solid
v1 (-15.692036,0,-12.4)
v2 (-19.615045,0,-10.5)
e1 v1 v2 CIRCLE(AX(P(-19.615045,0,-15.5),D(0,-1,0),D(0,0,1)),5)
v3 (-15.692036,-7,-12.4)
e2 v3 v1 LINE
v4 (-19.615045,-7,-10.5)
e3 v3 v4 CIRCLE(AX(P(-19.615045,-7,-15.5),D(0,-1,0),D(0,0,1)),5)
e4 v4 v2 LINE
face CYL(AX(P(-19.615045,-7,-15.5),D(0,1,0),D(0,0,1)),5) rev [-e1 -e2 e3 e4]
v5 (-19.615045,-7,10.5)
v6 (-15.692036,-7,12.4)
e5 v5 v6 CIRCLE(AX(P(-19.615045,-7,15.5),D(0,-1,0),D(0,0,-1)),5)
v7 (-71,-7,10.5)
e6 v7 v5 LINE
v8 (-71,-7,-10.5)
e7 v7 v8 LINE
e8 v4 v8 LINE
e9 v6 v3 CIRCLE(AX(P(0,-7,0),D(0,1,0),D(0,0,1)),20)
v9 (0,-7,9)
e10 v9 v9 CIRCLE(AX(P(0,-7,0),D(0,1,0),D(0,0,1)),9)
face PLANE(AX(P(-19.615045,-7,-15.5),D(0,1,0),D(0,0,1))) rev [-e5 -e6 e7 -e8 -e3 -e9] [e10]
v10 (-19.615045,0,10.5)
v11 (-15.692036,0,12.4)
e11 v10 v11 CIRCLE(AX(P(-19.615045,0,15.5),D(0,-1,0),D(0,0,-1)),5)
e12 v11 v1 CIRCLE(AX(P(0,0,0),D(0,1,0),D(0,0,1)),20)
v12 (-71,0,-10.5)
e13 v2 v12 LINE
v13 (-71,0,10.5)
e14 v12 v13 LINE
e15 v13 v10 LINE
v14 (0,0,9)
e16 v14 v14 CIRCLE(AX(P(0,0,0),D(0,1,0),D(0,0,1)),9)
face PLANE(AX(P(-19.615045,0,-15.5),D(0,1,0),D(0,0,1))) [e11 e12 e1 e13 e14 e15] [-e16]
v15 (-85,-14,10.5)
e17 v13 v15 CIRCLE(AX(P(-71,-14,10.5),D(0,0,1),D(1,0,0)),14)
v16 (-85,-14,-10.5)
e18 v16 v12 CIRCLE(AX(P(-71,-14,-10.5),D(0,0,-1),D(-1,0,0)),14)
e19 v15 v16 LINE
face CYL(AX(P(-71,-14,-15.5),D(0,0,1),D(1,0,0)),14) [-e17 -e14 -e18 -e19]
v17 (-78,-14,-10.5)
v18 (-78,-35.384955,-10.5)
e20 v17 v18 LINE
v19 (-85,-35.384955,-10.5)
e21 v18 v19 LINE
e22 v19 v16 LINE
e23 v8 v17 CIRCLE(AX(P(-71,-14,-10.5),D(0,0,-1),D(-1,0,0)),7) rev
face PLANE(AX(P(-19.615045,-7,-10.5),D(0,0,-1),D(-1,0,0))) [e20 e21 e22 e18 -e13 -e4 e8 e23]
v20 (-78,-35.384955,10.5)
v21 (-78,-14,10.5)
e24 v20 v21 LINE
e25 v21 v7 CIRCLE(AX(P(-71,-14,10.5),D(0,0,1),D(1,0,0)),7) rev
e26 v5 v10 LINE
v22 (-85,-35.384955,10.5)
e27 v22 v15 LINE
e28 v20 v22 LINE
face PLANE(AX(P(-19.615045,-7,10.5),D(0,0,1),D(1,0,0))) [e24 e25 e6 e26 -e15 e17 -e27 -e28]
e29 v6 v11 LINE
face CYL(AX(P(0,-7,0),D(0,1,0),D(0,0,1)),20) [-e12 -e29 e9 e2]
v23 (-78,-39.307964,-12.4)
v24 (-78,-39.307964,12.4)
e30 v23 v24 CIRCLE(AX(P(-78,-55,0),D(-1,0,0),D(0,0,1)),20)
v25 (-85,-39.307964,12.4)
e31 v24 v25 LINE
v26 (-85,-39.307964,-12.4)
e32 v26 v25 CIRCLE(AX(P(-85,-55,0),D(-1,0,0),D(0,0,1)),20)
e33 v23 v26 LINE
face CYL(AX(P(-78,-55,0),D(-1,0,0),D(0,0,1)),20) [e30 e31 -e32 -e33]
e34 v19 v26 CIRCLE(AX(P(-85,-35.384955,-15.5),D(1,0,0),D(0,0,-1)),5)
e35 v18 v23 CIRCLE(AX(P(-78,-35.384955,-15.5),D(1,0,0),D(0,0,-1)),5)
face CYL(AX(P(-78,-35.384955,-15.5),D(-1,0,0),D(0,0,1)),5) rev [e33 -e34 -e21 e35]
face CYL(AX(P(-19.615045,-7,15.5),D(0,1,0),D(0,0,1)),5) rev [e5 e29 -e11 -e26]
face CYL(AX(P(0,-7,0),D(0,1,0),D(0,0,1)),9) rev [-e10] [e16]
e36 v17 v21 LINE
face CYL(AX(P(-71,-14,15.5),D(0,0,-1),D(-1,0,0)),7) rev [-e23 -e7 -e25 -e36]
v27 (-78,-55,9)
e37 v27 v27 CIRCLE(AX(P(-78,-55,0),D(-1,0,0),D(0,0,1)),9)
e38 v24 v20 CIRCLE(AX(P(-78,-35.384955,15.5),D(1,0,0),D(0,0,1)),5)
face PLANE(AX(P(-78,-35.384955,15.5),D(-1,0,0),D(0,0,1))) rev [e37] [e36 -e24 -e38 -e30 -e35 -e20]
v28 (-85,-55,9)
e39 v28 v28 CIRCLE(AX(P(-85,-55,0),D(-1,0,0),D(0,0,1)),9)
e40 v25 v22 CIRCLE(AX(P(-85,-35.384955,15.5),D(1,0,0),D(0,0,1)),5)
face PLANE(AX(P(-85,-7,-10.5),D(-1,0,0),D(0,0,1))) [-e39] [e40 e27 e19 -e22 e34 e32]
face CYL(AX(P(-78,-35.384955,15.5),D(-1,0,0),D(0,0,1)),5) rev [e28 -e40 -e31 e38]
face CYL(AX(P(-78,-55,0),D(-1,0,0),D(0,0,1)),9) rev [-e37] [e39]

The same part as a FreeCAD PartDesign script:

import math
import FreeCAD as App
import Part
import Sketcher

V = App.Vector


def edges_at(feature, points):
    """Names of the edges that pass closest to the given points."""
    edges = feature.Shape.Edges
    near = lambda p: min(range(len(edges)), key=lambda i: edges[i].distToShape(Part.Vertex(*p))[0])
    return sorted({f"Edge{near(p) + 1}" for p in points})

doc = App.newDocument("Part")
body = doc.addObject("PartDesign::Body", "Body")

sketch1 = doc.addObject("Sketcher::SketchObject", "Sketch")
body.addObject(sketch1)
sketch1.AttachmentSupport = (doc.XZ_Plane, [""])
sketch1.MapMode = "FlatFace"
sketch1.addGeometry([
    Part.LineSegment(V(-19.6, -10.5, 0), V(-85, -10.5, 0)),
    Part.LineSegment(V(-85, -10.5, 0), V(-85, 10.5, 0)),
    Part.LineSegment(V(-85, 10.5, 0), V(-19.6, 10.5, 0)),
    Part.ArcOfCircle(Part.Circle(V(-19.6, 15.5, 0), V(0, 0, 1), 5), math.radians(-90), math.radians(-38)),
    Part.ArcOfCircle(Part.Circle(V(0, 0, 0), V(0, 0, 1), 20), math.radians(-142), math.radians(142)),
    Part.ArcOfCircle(Part.Circle(V(-19.6, -15.5, 0), V(0, 0, 1), 5), math.radians(38), math.radians(90)),
    Part.Circle(V(0, 0, 0), V(0, 0, 1), 9),
], False)
sketch1.addConstraint([
    Sketcher.Constraint("Coincident", 0, 2, 1, 1),
    Sketcher.Constraint("Coincident", 1, 2, 2, 1),
    Sketcher.Constraint("Tangent", 2, 2, 3, 1),
    Sketcher.Constraint("Tangent", 3, 2, 4, 2),
    Sketcher.Constraint("Tangent", 4, 1, 5, 1),
    Sketcher.Constraint("Tangent", 5, 2, 0, 1),
    Sketcher.Constraint("Horizontal", 0),
    Sketcher.Constraint("Vertical", 1),
    Sketcher.Constraint("Horizontal", 2),
    Sketcher.Constraint("Coincident", 4, 3, -1, 1),
    Sketcher.Constraint("Coincident", 6, 3, -1, 1),
    Sketcher.Constraint("Equal", 3, 5),
    Sketcher.Constraint("Vertical", 3, 3, 5, 3),
    Sketcher.Constraint("Diameter", 6, 18.0),
    Sketcher.Constraint("Radius", 3, 5.0),
    Sketcher.Constraint("Radius", 4, 20.0),
    Sketcher.Constraint("DistanceY", 1, 1, 1, 2, 21.0),
    Sketcher.Constraint("DistanceX", 0, 2, -1, 1, 85.0),
])
pad1 = doc.addObject("PartDesign::Pad", "Pad")
body.addObject(pad1)
pad1.Profile = sketch1
pad1.Length = 7

sketch2 = doc.addObject("Sketcher::SketchObject", "Sketch001")
body.addObject(sketch2)
sketch2.AttachmentSupport = (doc.YZ_Plane, [""])
sketch2.MapMode = "FlatFace"
sketch2.AttachmentOffset = App.Placement(V(0, 0, -85), App.Rotation())
sketch2.addGeometry([
    Part.LineSegment(V(-35.4, 10.5, 0), V(0, 10.5, 0)),
    Part.LineSegment(V(0, 10.5, 0), V(0, -10.5, 0)),
    Part.LineSegment(V(0, -10.5, 0), V(-35.4, -10.5, 0)),
    Part.ArcOfCircle(Part.Circle(V(-35.4, -15.5, 0), V(0, 0, 1), 5), math.radians(90), math.radians(142)),
    Part.ArcOfCircle(Part.Circle(V(-55, 0, 0), V(0, 0, 1), 20), math.radians(38), math.radians(322)),
    Part.ArcOfCircle(Part.Circle(V(-35.4, 15.5, 0), V(0, 0, 1), 5), math.radians(-142), math.radians(-90)),
    Part.Circle(V(-55, 0, 0), V(0, 0, 1), 9),
], False)
sketch2.addConstraint([
    Sketcher.Constraint("Coincident", 0, 2, 1, 1),
    Sketcher.Constraint("Coincident", 1, 2, 2, 1),
    Sketcher.Constraint("Tangent", 2, 2, 3, 1),
    Sketcher.Constraint("Tangent", 3, 2, 4, 2),
    Sketcher.Constraint("Tangent", 4, 1, 5, 1),
    Sketcher.Constraint("Tangent", 5, 2, 0, 1),
    Sketcher.Constraint("Horizontal", 0),
    Sketcher.Constraint("Vertical", 1),
    Sketcher.Constraint("Horizontal", 2),
    Sketcher.Constraint("Coincident", 6, 3, 4, 3),
    Sketcher.Constraint("Equal", 3, 5),
    Sketcher.Constraint("Symmetric", 0, 2, 1, 2, -1, 1),
    Sketcher.Constraint("PointOnObject", 4, 3, -1),
    Sketcher.Constraint("Diameter", 6, 18.0),
    Sketcher.Constraint("Radius", 3, 5.0),
    Sketcher.Constraint("Radius", 4, 20.0),
    Sketcher.Constraint("DistanceY", 1, 2, 1, 1, 21.0),
    Sketcher.Constraint("DistanceX", 4, 3, -1, 1, 55.0),
])
pad2 = doc.addObject("PartDesign::Pad", "Pad001")
body.addObject(pad2)
pad2.Profile = sketch2
pad2.Length = 7
doc.recompute()

fillet = doc.addObject("PartDesign::Fillet", "Fillet")
body.addObject(fillet)
fillet.Base = (pad2, edges_at(pad2, [(-85, 0, 0)]))
fillet.Radius = 14
doc.recompute()

fillet2 = doc.addObject("PartDesign::Fillet", "Fillet001")
body.addObject(fillet2)
fillet2.Base = (fillet, edges_at(fillet, [(-78, -7, 0)]))
fillet2.Radius = 7

doc.recompute()
